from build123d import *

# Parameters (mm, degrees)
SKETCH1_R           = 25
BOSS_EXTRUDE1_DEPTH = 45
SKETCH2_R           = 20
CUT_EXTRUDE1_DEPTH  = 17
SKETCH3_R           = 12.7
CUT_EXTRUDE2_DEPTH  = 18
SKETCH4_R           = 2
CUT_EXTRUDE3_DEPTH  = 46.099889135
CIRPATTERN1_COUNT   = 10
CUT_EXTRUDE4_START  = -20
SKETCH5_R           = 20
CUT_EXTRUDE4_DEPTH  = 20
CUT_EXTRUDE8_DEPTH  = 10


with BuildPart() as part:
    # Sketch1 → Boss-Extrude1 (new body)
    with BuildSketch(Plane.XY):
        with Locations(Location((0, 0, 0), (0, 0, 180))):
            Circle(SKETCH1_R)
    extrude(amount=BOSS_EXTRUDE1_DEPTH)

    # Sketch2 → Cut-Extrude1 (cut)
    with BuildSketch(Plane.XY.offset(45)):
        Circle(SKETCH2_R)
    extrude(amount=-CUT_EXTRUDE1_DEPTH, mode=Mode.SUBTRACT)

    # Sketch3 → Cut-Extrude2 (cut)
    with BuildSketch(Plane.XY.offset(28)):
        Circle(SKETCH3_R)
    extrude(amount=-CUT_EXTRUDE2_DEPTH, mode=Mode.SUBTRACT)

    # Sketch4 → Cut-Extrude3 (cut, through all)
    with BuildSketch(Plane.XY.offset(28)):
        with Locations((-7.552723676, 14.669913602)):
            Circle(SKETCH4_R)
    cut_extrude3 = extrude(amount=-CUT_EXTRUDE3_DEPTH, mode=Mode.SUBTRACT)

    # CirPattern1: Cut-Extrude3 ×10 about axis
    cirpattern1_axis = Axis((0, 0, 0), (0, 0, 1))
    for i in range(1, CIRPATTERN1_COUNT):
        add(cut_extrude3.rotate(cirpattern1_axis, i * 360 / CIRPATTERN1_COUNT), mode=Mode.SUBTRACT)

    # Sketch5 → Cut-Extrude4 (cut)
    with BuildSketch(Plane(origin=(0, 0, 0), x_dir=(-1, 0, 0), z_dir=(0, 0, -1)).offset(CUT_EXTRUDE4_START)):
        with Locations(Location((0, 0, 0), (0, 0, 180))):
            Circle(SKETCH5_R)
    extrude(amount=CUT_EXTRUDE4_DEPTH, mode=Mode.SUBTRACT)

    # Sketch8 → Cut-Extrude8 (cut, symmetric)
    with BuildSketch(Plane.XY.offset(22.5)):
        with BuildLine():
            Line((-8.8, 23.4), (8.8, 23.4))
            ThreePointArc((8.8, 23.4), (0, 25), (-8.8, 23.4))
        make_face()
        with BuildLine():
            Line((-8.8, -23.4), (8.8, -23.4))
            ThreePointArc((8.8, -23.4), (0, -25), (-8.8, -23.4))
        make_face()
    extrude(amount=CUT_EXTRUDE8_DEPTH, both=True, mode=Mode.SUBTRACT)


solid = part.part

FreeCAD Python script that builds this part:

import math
import FreeCAD as App
import Part
import Sketcher

V = App.Vector

doc = App.newDocument("Part")
body = doc.addObject("PartDesign::Body", "Body")

sketch1 = body.newObject("Sketcher::SketchObject", "Sketch")
sketch1.AttachmentSupport = (doc.getObject("XY_Plane"), [""])
sketch1.MapMode = "FlatFace"
sketch1.addGeometry(Part.Circle(V(0, 0, 0), V(0, 0, 1), 25), False)
sketch1.addConstraint(Sketcher.Constraint("Coincident", 0, 3, -1, 1))
sketch1.addConstraint(Sketcher.Constraint("Diameter", 0, 50.0))
pad1 = body.newObject("PartDesign::Pad", "Pad")
pad1.Profile = sketch1
pad1.Length = 45

sketch2 = body.newObject("Sketcher::SketchObject", "Sketch001")
sketch2.AttachmentSupport = (doc.getObject("XY_Plane"), [""])
sketch2.MapMode = "FlatFace"
sketch2.AttachmentOffset = App.Placement(V(0, 0, 45), App.Rotation())
sketch2.addGeometry(Part.Circle(V(0, 0, 0), V(0, 0, 1), 20), False)
sketch2.addConstraint(Sketcher.Constraint("Coincident", 0, 3, -1, 1))
sketch2.addConstraint(Sketcher.Constraint("Diameter", 0, 40.0))
pocket1 = body.newObject("PartDesign::Pocket", "Pocket")
pocket1.Profile = sketch2
pocket1.Length = 17

sketch3 = body.newObject("Sketcher::SketchObject", "Sketch002")
sketch3.AttachmentSupport = (doc.getObject("XY_Plane"), [""])
sketch3.MapMode = "FlatFace"
sketch3.AttachmentOffset = App.Placement(V(0, 0, 28), App.Rotation())
sketch3.addGeometry(Part.Circle(V(0, 0, 0), V(0, 0, 1), 13), False)
sketch3.addConstraint(Sketcher.Constraint("Coincident", 0, 3, -1, 1))
sketch3.addConstraint(Sketcher.Constraint("Diameter", 0, 25.4))
pocket2 = body.newObject("PartDesign::Pocket", "Pocket001")
pocket2.Profile = sketch3
pocket2.Length = 18

sketch4 = body.newObject("Sketcher::SketchObject", "Sketch003")
sketch4.AttachmentSupport = (doc.getObject("XY_Plane"), [""])
sketch4.MapMode = "FlatFace"
sketch4.AttachmentOffset = App.Placement(V(0, 0, 28), App.Rotation())
sketch4.addGeometry(Part.Circle(V(-7.6, 14.7, 0), V(0, 0, 1), 2), False)
sketch4.addConstraint(Sketcher.Constraint("Diameter", 0, 4.0))
sketch4.addConstraint(Sketcher.Constraint("DistanceX", 0, 3, -1, 1, 7.552724))
sketch4.addConstraint(Sketcher.Constraint("DistanceY", -1, 1, 0, 3, 14.669914))
pocket3 = body.newObject("PartDesign::Pocket", "Pocket002")
pocket3.Profile = sketch4
pocket3.Type = "ThroughAll"
doc.recompute()

polarpattern = body.newObject("PartDesign::PolarPattern", "PolarPattern")
polarpattern.Originals = [pocket3]
polarpattern.Axis = (doc.getObject("Z_Axis"), [""])
polarpattern.Angle = 360
polarpattern.Occurrences = 10
body.Tip = polarpattern

sketch5 = body.newObject("Sketcher::SketchObject", "Sketch004")
sketch5.AttachmentSupport = (doc.getObject("XY_Plane"), [""])
sketch5.MapMode = "FlatFace"
sketch5.AttachmentOffset = App.Placement(V(0, 0, 20), App.Rotation())
sketch5.addGeometry(Part.Circle(V(0, 0, 0), V(0, 0, 1), 20), False)
sketch5.addConstraint(Sketcher.Constraint("Coincident", 0, 3, -1, 1))
sketch5.addConstraint(Sketcher.Constraint("Diameter", 0, 40.0))
pocket4 = body.newObject("PartDesign::Pocket", "Pocket003")
pocket4.Profile = sketch5
pocket4.Length = 20

sketch6 = body.newObject("Sketcher::SketchObject", "Sketch005")
sketch6.AttachmentSupport = (doc.getObject("XY_Plane"), [""])
sketch6.MapMode = "FlatFace"
sketch6.AttachmentOffset = App.Placement(V(0, 0, 22.5), App.Rotation())
sketch6.addGeometry(Part.LineSegment(V(-9, 23, 0), V(9, 23, 0)), False)
sketch6.addGeometry(Part.ArcOfCircle(Part.Circle(V(0, 0, 0), V(0, 0, 1), 25), math.radians(69), math.radians(111)), False)
sketch6.addGeometry(Part.LineSegment(V(9, -23, 0), V(-9, -23, 0)), False)
sketch6.addGeometry(Part.ArcOfCircle(Part.Circle(V(0, 0, 0), V(0, 0, 1), 25), math.radians(-111), math.radians(-69)), False)
sketch6.addConstraint(Sketcher.Constraint("Coincident", 0, 1, 1, 2))
sketch6.addConstraint(Sketcher.Constraint("Coincident", 1, 1, 0, 2))
sketch6.addConstraint(Sketcher.Constraint("Coincident", 2, 1, 3, 2))
sketch6.addConstraint(Sketcher.Constraint("Coincident", 3, 1, 2, 2))
sketch6.addConstraint(Sketcher.Constraint("Horizontal", 0))
sketch6.addConstraint(Sketcher.Constraint("Horizontal", 2))
sketch6.addConstraint(Sketcher.Constraint("Coincident", 1, 3, -1, 1))
sketch6.addConstraint(Sketcher.Constraint("Coincident", 3, 3, -1, 1))
sketch6.addConstraint(Sketcher.Constraint("Equal", 1, 3))
sketch6.addConstraint(Sketcher.Constraint("Vertical", 1, 1, 2, 1))
sketch6.addConstraint(Sketcher.Constraint("Radius", 1, 25.0))
sketch6.addConstraint(Sketcher.Constraint("DistanceX", 0, 1, 0, 2, 17.6))
pocket5 = body.newObject("PartDesign::Pocket", "Pocket004")
pocket5.Profile = sketch6
pocket5.Length = 20
pocket5.Midplane = True

doc.recompute()
